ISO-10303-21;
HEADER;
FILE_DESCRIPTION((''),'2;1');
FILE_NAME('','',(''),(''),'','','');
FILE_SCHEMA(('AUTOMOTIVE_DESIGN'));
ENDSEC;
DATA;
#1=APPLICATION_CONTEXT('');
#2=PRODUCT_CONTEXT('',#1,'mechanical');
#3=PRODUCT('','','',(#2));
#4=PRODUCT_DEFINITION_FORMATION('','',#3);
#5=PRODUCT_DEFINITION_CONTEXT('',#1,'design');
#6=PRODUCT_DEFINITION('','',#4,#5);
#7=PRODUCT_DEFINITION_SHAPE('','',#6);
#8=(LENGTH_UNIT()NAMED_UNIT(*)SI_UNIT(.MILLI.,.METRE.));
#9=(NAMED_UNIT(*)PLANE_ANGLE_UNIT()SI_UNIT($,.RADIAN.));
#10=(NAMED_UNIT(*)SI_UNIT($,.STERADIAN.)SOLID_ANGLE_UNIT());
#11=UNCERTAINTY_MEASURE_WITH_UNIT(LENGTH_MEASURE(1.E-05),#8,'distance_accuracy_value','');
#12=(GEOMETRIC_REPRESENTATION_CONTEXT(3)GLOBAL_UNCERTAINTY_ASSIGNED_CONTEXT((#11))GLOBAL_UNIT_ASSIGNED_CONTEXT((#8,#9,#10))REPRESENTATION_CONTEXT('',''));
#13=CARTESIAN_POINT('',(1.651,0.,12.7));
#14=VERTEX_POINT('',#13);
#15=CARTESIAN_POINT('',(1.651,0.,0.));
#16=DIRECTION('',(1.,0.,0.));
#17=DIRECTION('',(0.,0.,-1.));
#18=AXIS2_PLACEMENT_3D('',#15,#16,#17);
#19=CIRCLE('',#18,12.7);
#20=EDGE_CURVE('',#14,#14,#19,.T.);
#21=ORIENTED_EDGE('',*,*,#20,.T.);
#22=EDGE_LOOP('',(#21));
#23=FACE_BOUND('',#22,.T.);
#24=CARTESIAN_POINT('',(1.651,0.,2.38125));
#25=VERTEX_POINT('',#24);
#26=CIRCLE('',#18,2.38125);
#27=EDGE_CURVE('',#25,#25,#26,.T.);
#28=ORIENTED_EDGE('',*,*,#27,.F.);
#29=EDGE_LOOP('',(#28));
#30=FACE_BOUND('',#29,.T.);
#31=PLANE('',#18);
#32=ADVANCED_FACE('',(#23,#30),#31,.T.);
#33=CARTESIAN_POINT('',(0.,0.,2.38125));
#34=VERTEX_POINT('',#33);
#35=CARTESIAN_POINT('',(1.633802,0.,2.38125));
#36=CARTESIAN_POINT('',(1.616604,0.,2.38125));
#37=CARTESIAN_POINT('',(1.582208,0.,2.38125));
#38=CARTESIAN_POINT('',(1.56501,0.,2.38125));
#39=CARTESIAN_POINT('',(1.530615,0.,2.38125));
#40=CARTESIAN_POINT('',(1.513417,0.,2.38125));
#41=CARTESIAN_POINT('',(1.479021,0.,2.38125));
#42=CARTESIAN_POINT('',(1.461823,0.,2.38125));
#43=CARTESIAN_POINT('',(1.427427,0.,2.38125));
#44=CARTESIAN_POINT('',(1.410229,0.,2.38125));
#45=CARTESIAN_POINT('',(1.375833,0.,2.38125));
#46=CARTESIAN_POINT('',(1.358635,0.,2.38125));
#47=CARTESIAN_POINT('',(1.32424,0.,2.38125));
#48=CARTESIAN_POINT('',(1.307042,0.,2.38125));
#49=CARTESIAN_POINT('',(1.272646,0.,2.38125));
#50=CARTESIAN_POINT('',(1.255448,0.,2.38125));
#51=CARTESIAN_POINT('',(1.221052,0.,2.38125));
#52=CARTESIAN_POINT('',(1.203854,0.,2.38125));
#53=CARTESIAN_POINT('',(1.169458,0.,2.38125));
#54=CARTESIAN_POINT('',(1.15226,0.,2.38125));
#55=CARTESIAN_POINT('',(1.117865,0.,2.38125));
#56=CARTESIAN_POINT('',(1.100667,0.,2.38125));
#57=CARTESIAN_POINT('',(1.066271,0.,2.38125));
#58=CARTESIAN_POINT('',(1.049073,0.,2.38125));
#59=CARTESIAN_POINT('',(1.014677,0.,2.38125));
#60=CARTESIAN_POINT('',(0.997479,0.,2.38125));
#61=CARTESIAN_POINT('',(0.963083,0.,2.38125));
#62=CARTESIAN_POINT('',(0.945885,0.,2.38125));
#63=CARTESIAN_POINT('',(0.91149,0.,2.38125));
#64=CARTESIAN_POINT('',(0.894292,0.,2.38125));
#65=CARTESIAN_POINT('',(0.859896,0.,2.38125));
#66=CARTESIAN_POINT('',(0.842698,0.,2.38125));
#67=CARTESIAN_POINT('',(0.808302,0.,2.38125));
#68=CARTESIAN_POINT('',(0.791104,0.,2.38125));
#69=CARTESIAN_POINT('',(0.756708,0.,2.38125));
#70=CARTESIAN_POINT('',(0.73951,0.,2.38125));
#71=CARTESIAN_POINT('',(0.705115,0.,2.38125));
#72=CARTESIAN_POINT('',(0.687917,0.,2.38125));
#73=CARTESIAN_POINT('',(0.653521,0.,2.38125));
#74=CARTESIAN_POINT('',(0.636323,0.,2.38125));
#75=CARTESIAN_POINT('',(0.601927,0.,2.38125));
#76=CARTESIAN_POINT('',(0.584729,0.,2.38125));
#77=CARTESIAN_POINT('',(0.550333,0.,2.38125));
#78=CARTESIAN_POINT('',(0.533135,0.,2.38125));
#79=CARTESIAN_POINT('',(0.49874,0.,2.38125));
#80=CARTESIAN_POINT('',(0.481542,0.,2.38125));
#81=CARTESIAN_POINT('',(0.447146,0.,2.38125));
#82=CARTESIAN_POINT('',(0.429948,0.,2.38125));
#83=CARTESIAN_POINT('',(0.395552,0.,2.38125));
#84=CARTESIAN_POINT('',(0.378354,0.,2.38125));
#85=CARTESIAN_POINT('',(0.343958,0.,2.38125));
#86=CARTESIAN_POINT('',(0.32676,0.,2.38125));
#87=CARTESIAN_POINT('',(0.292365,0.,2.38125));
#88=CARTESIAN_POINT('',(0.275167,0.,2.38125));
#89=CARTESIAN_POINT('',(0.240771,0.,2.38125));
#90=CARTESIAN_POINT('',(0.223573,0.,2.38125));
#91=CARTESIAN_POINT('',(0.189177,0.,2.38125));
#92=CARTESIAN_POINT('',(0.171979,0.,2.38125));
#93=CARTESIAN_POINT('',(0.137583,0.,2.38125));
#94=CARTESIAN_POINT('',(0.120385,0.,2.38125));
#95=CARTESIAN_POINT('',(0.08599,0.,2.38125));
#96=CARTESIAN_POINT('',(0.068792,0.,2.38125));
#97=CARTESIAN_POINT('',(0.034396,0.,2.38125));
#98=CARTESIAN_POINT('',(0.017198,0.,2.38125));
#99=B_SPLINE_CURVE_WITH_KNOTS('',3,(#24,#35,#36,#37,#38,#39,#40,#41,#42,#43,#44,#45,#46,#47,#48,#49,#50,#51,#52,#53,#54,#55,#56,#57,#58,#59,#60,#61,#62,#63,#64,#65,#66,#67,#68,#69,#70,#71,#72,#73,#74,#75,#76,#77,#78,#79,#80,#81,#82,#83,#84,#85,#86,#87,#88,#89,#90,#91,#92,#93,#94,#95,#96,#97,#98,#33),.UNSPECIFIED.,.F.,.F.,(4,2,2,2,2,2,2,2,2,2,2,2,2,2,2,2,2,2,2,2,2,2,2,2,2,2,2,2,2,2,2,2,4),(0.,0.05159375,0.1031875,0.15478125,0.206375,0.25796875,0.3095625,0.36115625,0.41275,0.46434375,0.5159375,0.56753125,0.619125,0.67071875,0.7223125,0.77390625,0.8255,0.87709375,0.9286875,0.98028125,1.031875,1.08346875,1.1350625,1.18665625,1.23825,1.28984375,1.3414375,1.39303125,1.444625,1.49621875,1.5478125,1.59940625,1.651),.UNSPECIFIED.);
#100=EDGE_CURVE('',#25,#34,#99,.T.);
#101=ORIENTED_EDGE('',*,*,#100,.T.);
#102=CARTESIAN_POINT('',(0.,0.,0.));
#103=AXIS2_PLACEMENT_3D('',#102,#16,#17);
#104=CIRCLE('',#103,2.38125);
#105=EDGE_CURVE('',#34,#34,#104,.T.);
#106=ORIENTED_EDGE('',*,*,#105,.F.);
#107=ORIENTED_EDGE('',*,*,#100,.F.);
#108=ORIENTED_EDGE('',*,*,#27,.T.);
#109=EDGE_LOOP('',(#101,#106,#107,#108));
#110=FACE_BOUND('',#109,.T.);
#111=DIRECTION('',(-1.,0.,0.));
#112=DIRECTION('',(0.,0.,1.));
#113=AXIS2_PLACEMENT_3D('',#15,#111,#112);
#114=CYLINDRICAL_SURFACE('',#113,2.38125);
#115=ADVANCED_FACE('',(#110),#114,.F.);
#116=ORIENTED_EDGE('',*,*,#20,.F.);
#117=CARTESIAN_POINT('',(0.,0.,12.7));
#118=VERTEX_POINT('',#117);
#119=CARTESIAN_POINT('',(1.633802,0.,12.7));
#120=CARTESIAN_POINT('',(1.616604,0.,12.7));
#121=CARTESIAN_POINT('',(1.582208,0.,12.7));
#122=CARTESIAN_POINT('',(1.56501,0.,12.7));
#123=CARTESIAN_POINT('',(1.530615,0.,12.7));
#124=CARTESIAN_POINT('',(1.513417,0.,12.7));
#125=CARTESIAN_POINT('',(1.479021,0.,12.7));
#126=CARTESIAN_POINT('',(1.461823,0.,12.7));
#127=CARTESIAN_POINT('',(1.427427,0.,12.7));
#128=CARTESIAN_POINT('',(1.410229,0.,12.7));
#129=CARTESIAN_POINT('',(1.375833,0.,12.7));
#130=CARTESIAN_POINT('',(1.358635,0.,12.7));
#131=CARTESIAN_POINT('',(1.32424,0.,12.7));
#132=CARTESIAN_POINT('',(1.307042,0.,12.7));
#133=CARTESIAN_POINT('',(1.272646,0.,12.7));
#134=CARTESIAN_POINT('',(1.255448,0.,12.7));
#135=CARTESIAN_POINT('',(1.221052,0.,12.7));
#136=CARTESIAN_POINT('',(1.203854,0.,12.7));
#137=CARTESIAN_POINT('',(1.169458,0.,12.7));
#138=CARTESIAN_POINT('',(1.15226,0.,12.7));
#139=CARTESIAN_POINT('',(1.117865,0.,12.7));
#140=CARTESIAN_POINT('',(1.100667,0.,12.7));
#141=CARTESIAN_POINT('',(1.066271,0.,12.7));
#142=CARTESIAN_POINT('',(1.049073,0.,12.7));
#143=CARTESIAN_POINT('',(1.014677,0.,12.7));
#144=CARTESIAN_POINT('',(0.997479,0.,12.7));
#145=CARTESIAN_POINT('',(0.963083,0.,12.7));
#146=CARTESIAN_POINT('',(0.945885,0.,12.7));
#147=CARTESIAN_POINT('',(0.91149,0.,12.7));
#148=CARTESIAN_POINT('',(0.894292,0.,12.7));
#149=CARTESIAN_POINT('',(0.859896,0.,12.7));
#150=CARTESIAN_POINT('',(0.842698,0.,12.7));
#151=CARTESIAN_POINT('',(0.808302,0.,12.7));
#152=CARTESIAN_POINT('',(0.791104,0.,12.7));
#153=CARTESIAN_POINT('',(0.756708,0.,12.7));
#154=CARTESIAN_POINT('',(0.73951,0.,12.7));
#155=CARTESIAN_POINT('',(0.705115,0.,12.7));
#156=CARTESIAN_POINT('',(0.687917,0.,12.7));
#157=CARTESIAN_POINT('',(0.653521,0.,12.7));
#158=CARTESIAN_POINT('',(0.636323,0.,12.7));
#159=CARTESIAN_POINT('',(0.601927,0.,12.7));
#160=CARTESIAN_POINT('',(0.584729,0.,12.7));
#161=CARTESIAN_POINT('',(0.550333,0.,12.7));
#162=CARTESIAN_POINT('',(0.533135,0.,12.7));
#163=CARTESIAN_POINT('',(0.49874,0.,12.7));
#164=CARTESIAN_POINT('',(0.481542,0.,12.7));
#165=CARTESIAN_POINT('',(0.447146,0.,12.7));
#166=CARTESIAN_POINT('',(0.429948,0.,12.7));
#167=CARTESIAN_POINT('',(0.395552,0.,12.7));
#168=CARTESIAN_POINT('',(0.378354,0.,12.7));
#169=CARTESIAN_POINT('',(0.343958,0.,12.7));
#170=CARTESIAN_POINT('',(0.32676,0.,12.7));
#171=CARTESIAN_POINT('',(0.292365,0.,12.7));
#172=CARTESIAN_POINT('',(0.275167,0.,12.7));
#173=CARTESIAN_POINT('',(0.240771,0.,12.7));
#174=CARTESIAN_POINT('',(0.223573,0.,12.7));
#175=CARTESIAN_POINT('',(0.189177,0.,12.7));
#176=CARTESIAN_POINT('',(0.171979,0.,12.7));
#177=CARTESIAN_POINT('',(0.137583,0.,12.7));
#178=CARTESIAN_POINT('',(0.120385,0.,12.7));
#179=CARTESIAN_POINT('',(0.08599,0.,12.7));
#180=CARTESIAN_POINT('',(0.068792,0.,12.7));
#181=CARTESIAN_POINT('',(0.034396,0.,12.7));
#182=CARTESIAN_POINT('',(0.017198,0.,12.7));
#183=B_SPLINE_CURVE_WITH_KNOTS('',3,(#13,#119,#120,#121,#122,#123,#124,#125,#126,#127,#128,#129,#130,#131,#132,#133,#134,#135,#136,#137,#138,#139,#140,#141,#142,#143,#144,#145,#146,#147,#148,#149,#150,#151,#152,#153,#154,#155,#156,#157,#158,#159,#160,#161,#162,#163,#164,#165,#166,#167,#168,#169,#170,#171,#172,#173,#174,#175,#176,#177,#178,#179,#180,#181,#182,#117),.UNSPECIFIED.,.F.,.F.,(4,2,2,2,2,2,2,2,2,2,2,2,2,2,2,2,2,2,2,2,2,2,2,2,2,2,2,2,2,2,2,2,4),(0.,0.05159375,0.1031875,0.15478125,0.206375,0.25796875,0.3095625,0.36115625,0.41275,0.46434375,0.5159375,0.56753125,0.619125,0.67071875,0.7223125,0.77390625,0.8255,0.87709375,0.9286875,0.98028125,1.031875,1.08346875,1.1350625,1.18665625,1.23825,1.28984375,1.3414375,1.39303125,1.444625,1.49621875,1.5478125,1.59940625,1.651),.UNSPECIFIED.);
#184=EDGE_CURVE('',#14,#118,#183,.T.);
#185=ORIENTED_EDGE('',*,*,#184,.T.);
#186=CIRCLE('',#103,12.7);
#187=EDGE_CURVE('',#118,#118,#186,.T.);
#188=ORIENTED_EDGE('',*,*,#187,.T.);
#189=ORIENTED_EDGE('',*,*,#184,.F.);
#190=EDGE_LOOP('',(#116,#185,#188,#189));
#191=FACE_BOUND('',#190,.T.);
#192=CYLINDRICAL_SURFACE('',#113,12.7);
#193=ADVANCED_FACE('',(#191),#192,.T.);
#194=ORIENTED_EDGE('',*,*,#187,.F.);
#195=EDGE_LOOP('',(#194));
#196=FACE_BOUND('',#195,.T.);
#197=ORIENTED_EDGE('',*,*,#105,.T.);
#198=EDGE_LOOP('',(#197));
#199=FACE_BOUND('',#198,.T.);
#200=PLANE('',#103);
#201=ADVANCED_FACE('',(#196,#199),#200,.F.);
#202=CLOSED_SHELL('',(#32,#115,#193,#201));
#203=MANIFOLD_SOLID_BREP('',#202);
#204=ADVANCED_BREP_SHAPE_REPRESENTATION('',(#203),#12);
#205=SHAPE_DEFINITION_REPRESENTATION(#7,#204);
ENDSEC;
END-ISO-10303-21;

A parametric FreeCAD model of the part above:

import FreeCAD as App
import Part
import Sketcher

V = App.Vector
Q = App.Units.Quantity

doc = App.newDocument("Part")
body = doc.addObject("PartDesign::Body", "Body")

# Sketch on YZ plane
sketch1 = body.newObject("Sketcher::SketchObject", "Sketch")
sketch1.AttachmentSupport = (doc.getObject("YZ_Plane"), [""])
sketch1.MapMode = "FlatFace"
sketch1.addGeometry(Part.Circle(V(0, 0, 0), V(0, 0, 1), 12.7), False)
sketch1.addGeometry(Part.Circle(V(0, 0, 0), V(0, 0, 1), 2.4), False)
sketch1.addConstraint(Sketcher.Constraint("Coincident", 0, 3, -1, 1))
sketch1.addConstraint(Sketcher.Constraint("Coincident", 1, 3, -1, 1))
sketch1.addConstraint(Sketcher.Constraint("Diameter", 0, Q("1 in")))
sketch1.addConstraint(Sketcher.Constraint("Diameter", 1, Q("0.1875 in")))
pad1 = body.newObject("PartDesign::Pad", "Pad")
pad1.Profile = sketch1
pad1.Length = Q("0.065 in")

doc.recompute()
